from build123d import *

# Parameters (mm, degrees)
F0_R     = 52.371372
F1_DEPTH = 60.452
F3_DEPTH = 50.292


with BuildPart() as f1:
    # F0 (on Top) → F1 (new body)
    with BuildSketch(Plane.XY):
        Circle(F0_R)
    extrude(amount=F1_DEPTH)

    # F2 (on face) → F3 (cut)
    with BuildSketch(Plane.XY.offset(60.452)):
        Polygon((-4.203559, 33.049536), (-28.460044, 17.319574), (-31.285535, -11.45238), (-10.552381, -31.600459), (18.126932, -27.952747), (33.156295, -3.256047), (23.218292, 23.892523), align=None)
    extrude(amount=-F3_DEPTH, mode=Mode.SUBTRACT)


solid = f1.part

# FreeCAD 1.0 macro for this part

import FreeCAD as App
import Part
import Sketcher
Q = App.Units.Quantity


def add_polygon(sketch, points):
    """Adds a closed chain of lines whose ends are joined by coincident constraints."""
    first, n = sketch.GeometryCount, len(points)
    for a, b in zip(points, points[1:] + points[:1]):
        sketch.addGeometry(Part.LineSegment(App.Vector(*a, 0), App.Vector(*b, 0)), False)
    for i in range(n):
        sketch.addConstraint(Sketcher.Constraint("Coincident", first + i, 2, first + (i + 1) % n, 1))

doc = App.newDocument("Part")
body = doc.addObject("PartDesign::Body", "Body")

# Sketch on XY plane
sketch1 = doc.addObject("Sketcher::SketchObject", "Sketch")
body.addObject(sketch1)
sketch1.AttachmentSupport = (doc.XY_Plane, [""])
sketch1.MapMode = "FlatFace"
sketch1.addGeometry(Part.Circle(App.Vector(0, 0, 0), App.Vector(0, 0, 1), 52), False)
sketch1.addConstraint([
    Sketcher.Constraint("Coincident", 0, 3, -1, 1),
    Sketcher.Constraint("Diameter", 0, 104.742744),
])
pad1 = doc.addObject("PartDesign::Pad", "Pad")
body.addObject(pad1)
pad1.Profile = sketch1
pad1.Length = Q("2.38 in")

# Sketch on XY plane
sketch2 = doc.addObject("Sketcher::SketchObject", "Sketch001")
body.addObject(sketch2)
sketch2.AttachmentSupport = (doc.XY_Plane, [""])
sketch2.MapMode = "FlatFace"
sketch2.AttachmentOffset = App.Placement(App.Vector(0, 0, 2.38 * 25.4), App.Rotation())
add_polygon(sketch2, [(-4, 33), (-28, 17), (-31, -11), (-11, -32), (18, -28), (33, -3), (23, 24)])  # lines 0-6
sketch2.addConstraint([
    Sketcher.Constraint("Equal", 0, 1),
    Sketcher.Constraint("Equal", 1, 2),
    Sketcher.Constraint("Equal", 2, 3),
    Sketcher.Constraint("Equal", 3, 4),
    Sketcher.Constraint("Equal", 4, 5),
    Sketcher.Constraint("Equal", 5, 6),
    Sketcher.Constraint("DistanceY", 3, 2, 4, 2, 24.6967),
    Sketcher.Constraint("DistanceY", 1, 2, -1, 1, 11.45238),
    Sketcher.Constraint("DistanceX", 2, 2, -1, 1, 10.552381),
    Sketcher.Constraint("DistanceY", 2, 2, -1, 1, 31.600459),
    Sketcher.Constraint("DistanceX", -1, 1, 3, 2, 18.126932),
    Sketcher.Constraint("DistanceX", 6, 2, -1, 1, 4.203559),
    Sketcher.Constraint("DistanceX", 1, 2, 0, 2, 2.825491),
    Sketcher.Constraint("DistanceY", 3, 2, 0, 2, 45.272321),
])
pocket1 = doc.addObject("PartDesign::Pocket", "Pocket")
body.addObject(pocket1)
pocket1.Profile = sketch2
pocket1.Length = Q("1.98 in")

doc.recompute()
